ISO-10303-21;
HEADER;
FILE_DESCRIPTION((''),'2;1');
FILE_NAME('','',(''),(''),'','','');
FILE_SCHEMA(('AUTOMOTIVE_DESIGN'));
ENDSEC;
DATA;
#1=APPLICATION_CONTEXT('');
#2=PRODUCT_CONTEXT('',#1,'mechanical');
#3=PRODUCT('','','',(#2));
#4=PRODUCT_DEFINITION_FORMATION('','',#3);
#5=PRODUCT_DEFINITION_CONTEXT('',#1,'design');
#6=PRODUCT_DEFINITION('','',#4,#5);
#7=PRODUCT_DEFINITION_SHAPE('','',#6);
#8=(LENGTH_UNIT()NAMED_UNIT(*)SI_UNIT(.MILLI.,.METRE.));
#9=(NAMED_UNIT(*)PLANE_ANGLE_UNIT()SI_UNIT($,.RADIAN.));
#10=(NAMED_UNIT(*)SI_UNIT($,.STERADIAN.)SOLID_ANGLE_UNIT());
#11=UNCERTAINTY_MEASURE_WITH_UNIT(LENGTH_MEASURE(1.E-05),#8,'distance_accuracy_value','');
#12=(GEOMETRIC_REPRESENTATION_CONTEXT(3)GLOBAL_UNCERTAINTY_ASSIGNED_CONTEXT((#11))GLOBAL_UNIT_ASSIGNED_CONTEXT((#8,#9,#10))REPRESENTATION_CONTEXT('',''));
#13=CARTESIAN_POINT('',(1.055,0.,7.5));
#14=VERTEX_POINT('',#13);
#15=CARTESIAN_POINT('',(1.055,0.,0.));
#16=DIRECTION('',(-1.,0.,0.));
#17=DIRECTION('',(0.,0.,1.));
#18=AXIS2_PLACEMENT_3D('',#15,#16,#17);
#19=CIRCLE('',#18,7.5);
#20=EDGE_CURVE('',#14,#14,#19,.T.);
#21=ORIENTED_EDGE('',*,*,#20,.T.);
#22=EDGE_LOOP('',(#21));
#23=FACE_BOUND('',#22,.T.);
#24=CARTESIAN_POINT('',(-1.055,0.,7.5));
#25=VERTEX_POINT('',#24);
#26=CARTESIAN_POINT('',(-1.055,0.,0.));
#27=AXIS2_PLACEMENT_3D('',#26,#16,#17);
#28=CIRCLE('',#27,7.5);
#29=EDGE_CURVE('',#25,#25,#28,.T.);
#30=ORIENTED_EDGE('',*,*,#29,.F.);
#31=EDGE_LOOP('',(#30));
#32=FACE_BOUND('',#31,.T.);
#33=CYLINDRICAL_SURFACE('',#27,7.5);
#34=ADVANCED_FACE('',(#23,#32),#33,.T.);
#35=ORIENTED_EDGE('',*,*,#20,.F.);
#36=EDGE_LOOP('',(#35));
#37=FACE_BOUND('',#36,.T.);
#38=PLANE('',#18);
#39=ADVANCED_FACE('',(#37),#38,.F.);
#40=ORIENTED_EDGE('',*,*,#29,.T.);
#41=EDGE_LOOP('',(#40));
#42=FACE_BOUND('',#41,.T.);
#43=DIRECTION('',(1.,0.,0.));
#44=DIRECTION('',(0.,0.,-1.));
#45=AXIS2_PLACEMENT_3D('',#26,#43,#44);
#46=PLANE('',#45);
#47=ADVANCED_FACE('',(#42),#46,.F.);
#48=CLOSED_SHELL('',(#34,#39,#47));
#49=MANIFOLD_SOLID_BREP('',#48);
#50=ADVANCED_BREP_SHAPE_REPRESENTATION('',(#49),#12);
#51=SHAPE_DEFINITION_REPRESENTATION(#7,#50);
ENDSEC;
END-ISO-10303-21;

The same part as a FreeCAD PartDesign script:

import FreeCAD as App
import Part
import Sketcher

V = App.Vector
Q = App.Units.Quantity

doc = App.newDocument("Part")
body = doc.addObject("PartDesign::Body", "Body")

# Sketch on XY plane
sketch1 = doc.addObject("Sketcher::SketchObject", "Sketch")
body.addObject(sketch1)
sketch1.AttachmentSupport = (doc.XY_Plane, [""])
sketch1.MapMode = "FlatFace"
sketch1.addGeometry(Part.LineSegment(V(-1.055, 7.5, 0), V(-1.055, 0, 0)), False)
sketch1.addGeometry(Part.LineSegment(V(-1.055, 0, 0), V(1.055, 0, 0)), False)
sketch1.addGeometry(Part.LineSegment(V(1.055, 0, 0), V(1.055, 7.5, 0)), False)
sketch1.addGeometry(Part.LineSegment(V(1.055, 7.5, 0), V(-1.055, 7.5, 0)), False)
sketch1.addConstraint(Sketcher.Constraint("Coincident", 0, 2, 1, 1))
sketch1.addConstraint(Sketcher.Constraint("Coincident", 1, 2, 2, 1))
sketch1.addConstraint(Sketcher.Constraint("Coincident", 2, 2, 3, 1))
sketch1.addConstraint(Sketcher.Constraint("Coincident", 3, 2, 0, 1))
sketch1.addConstraint(Sketcher.Constraint("Vertical", 0))
sketch1.addConstraint(Sketcher.Constraint("Horizontal", 1))
sketch1.addConstraint(Sketcher.Constraint("Vertical", 2))
sketch1.addConstraint(Sketcher.Constraint("Horizontal", 3))
sketch1.addConstraint(Sketcher.Constraint("Symmetric", 0, 2, 1, 2, -1, 1))
sketch1.addConstraint(Sketcher.Constraint("DistanceY", 0, 2, 0, 1, Q("7.5 mm")))
sketch1.addConstraint(Sketcher.Constraint("DistanceX", 1, 1, 1, 2, Q("2.11 mm")))
revolution = doc.addObject("PartDesign::Revolution", "Revolution")
body.addObject(revolution)
revolution.Profile = sketch1
revolution.ReferenceAxis = (sketch1, ["H_Axis"])
revolution.Angle = 360

doc.recompute()
